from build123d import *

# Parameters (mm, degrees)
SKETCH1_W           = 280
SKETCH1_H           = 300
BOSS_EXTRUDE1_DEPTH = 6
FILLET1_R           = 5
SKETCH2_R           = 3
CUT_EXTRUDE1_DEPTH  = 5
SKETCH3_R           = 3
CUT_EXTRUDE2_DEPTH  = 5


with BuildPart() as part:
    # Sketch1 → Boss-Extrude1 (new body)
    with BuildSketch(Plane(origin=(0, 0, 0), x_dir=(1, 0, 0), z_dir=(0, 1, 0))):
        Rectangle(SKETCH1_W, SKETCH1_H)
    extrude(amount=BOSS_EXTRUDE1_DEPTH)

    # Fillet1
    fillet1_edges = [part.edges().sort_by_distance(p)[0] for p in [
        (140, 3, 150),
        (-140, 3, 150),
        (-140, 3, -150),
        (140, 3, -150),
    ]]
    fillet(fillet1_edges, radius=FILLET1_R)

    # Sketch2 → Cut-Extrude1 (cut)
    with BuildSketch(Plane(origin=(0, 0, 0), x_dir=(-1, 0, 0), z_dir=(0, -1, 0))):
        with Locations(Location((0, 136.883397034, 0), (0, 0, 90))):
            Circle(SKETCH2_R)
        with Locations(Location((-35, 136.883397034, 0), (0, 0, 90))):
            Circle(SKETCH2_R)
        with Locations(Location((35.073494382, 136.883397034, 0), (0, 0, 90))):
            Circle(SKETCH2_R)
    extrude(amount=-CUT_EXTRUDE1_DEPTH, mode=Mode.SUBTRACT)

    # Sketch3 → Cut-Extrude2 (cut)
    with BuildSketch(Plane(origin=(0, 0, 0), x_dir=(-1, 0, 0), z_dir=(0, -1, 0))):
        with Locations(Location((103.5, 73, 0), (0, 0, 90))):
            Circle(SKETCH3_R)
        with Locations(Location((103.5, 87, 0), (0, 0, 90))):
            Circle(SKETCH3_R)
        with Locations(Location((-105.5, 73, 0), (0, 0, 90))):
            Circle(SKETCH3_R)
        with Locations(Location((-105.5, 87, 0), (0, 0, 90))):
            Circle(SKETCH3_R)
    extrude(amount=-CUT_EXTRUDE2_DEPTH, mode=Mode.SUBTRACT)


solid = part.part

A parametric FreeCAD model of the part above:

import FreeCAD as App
import Part
import Sketcher

V = App.Vector
Q = App.Units.Quantity


def edges_at(feature, points):
    """Names of the edges that pass closest to the given points."""
    edges = feature.Shape.Edges
    near = lambda p: min(range(len(edges)), key=lambda i: edges[i].distToShape(Part.Vertex(*p))[0])
    return sorted({f"Edge{near(p) + 1}" for p in points})

doc = App.newDocument("Part")
body = doc.addObject("PartDesign::Body", "Body")

sketch1 = body.newObject("Sketcher::SketchObject", "Sketch")
sketch1.AttachmentSupport = (doc.getObject("XZ_Plane"), [""])
sketch1.MapMode = "FlatFace"
sketch1.addGeometry(Part.LineSegment(V(-140, -150, 0), V(-140, 150, 0)), False)
sketch1.addGeometry(Part.LineSegment(V(-140, 150, 0), V(140, 150, 0)), False)
sketch1.addGeometry(Part.LineSegment(V(140, 150, 0), V(140, -150, 0)), False)
sketch1.addGeometry(Part.LineSegment(V(140, -150, 0), V(-140, -150, 0)), False)
sketch1.addConstraint(Sketcher.Constraint("Coincident", 0, 2, 1, 1))
sketch1.addConstraint(Sketcher.Constraint("Coincident", 1, 2, 2, 1))
sketch1.addConstraint(Sketcher.Constraint("Coincident", 2, 2, 3, 1))
sketch1.addConstraint(Sketcher.Constraint("Coincident", 3, 2, 0, 1))
sketch1.addConstraint(Sketcher.Constraint("Vertical", 0))
sketch1.addConstraint(Sketcher.Constraint("Horizontal", 1))
sketch1.addConstraint(Sketcher.Constraint("Vertical", 2))
sketch1.addConstraint(Sketcher.Constraint("Horizontal", 3))
sketch1.addConstraint(Sketcher.Constraint("Symmetric", 0, 2, 2, 2, -1, 1))
sketch1.addConstraint(Sketcher.Constraint("DistanceX", 1, 1, 1, 2, Q("280 mm")))
sketch1.addConstraint(Sketcher.Constraint("DistanceY", 0, 1, 0, 2, Q("300 mm")))
pad1 = body.newObject("PartDesign::Pad", "Pad")
pad1.Profile = sketch1
pad1.Length = 6
pad1.Reversed = True
doc.recompute()

fillet = body.newObject("PartDesign::Fillet", "Fillet")
fillet.Base = (pad1, edges_at(pad1, [
    (140, 3, 150),
    (-140, 3, 150),
    (-140, 3, -150),
    (140, 3, -150),
]))
fillet.Radius = 5

sketch2 = body.newObject("Sketcher::SketchObject", "Sketch001")
sketch2.AttachmentSupport = (doc.getObject("XZ_Plane"), [""])
sketch2.MapMode = "FlatFace"
sketch2.addGeometry(Part.Circle(V(0, -136.9, 0), V(0, 0, 1), 3), False)
sketch2.addGeometry(Part.Circle(V(35, -136.9, 0), V(0, 0, 1), 3), False)
sketch2.addGeometry(Part.Circle(V(-35.1, -136.9, 0), V(0, 0, 1), 3), False)
sketch2.addConstraint(Sketcher.Constraint("Equal", 0, 1))
sketch2.addConstraint(Sketcher.Constraint("Equal", 1, 2))
sketch2.addConstraint(Sketcher.Constraint("PointOnObject", 0, 3, -2))
sketch2.addConstraint(Sketcher.Constraint("Horizontal", 0, 3, 1, 3))
sketch2.addConstraint(Sketcher.Constraint("Horizontal", 1, 3, 2, 3))
sketch2.addConstraint(Sketcher.Constraint("Diameter", 0, Q("6 mm")))
sketch2.addConstraint(Sketcher.Constraint("DistanceX", -1, 1, 1, 3, Q("35 mm")))
sketch2.addConstraint(Sketcher.Constraint("DistanceY", 0, 3, -1, 1, Q("136.883397 mm")))
sketch2.addConstraint(Sketcher.Constraint("DistanceX", 2, 3, -1, 1, Q("35.073494 mm")))
pocket1 = body.newObject("PartDesign::Pocket", "Pocket")
pocket1.Profile = sketch2
pocket1.Length = 5

sketch3 = body.newObject("Sketcher::SketchObject", "Sketch002")
sketch3.AttachmentSupport = (doc.getObject("XZ_Plane"), [""])
sketch3.MapMode = "FlatFace"
sketch3.addGeometry(Part.Circle(V(-103.5, -73, 0), V(0, 0, 1), 3), False)
sketch3.addGeometry(Part.Circle(V(-103.5, -87, 0), V(0, 0, 1), 3), False)
sketch3.addGeometry(Part.Circle(V(105.5, -73, 0), V(0, 0, 1), 3), False)
sketch3.addGeometry(Part.Circle(V(105.5, -87, 0), V(0, 0, 1), 3), False)
sketch3.addConstraint(Sketcher.Constraint("Equal", 0, 1))
sketch3.addConstraint(Sketcher.Constraint("Equal", 1, 2))
sketch3.addConstraint(Sketcher.Constraint("Equal", 2, 3))
sketch3.addConstraint(Sketcher.Constraint("Horizontal", 0, 3, 2, 3))
sketch3.addConstraint(Sketcher.Constraint("Horizontal", 1, 3, 3, 3))
sketch3.addConstraint(Sketcher.Constraint("Vertical", 0, 3, 1, 3))
sketch3.addConstraint(Sketcher.Constraint("Vertical", 2, 3, 3, 3))
sketch3.addConstraint(Sketcher.Constraint("Diameter", 0, Q("6 mm")))
sketch3.addConstraint(Sketcher.Constraint("DistanceY", 0, 3, -1, 1, Q("73 mm")))
sketch3.addConstraint(Sketcher.Constraint("DistanceY", 1, 3, -1, 1, Q("87 mm")))
sketch3.addConstraint(Sketcher.Constraint("DistanceX", 0, 3, 2, 3, Q("209 mm")))
sketch3.addConstraint(Sketcher.Constraint("DistanceX", 0, 3, -1, 1, Q("103.5 mm")))
pocket2 = body.newObject("PartDesign::Pocket", "Pocket001")
pocket2.Profile = sketch3
pocket2.Length = 5

doc.recompute()
